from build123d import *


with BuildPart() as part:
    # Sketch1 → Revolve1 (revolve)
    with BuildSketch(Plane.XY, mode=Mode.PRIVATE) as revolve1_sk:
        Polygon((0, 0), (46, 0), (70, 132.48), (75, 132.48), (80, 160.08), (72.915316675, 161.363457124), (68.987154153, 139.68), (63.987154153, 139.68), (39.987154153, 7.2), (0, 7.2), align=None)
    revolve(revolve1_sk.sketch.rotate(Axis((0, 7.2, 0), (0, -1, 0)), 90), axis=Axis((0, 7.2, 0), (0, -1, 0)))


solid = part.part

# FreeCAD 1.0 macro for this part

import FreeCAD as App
import Part
import Sketcher
from FreeCAD import Vector
Q = App.Units.Quantity


def add_polygon(sketch, points):
    """Adds a closed chain of lines whose ends are joined by coincident constraints."""
    first, n = sketch.GeometryCount, len(points)
    for a, b in zip(points, points[1:] + points[:1]):
        sketch.addGeometry(Part.LineSegment(App.Vector(*a, 0), App.Vector(*b, 0)), False)
    for i in range(n):
        sketch.addConstraint(Sketcher.Constraint("Coincident", first + i, 2, first + (i + 1) % n, 1))

doc = App.newDocument("Part")
body = doc.addObject("PartDesign::Body", "Body")

# Sketch on XY plane
sketch1 = body.newObject("Sketcher::SketchObject", "Sketch")
sketch1.AttachmentSupport = (doc.getObject("XY_Plane"), [""])
sketch1.MapMode = "FlatFace"
add_polygon(sketch1, [(0, 0), (46, 0), (70, 132), (75, 132), (80, 160), (73, 161), (69, 140), (64, 140), (40, 7), (0, 7)])  # lines 0-9
sketch1.addConstraint(Sketcher.Constraint("Horizontal", 0))
sketch1.addConstraint(Sketcher.Constraint("Horizontal", 2))
sketch1.addConstraint(Sketcher.Constraint("Horizontal", 6))
sketch1.addConstraint(Sketcher.Constraint("Horizontal", 8))
sketch1.addConstraint(Sketcher.Constraint("Vertical", 9))
sketch1.addConstraint(Sketcher.Constraint("Coincident", 9, 2, -1, 1))
sketch1.addConstraint(Sketcher.Constraint("Parallel", 1, 3))
sketch1.addConstraint(Sketcher.Constraint("Perpendicular", 3, 4))
sketch1.addConstraint(Sketcher.Constraint("Perpendicular", 4, 5))
sketch1.addConstraint(Sketcher.Constraint("Parallel", 5, 7))
sketch1.addConstraint(Sketcher.Constraint("Equal", 2, 6))
sketch1.addConstraint(Sketcher.Constraint("Equal", 1, 7))
sketch1.addConstraint(Sketcher.Constraint("DistanceX", 0, 1, 0, 2, Q("46 mm")))
sketch1.addConstraint(Sketcher.Constraint("DistanceX", 2, 1, 2, 2, Q("5 mm")))
sketch1.addConstraint(Sketcher.Constraint("DistanceY", 9, 2, 9, 1, Q("7.2 mm")))
sketch1.addConstraint(Sketcher.Constraint("DistanceX", -1, 1, 1, 2, Q("70 mm")))
sketch1.addConstraint(Sketcher.Constraint("DistanceX", -1, 1, 3, 2, Q("80 mm")))
sketch1.addConstraint(Sketcher.Constraint("Distance", 4, Q("7.2 mm")))
sketch1.addConstraint(Sketcher.Constraint("DistanceY", 2, 2, 3, 2, Q("27.6 mm")))
revolution = body.newObject("PartDesign::Revolution", "Revolution")
revolution.Profile = sketch1
revolution.ReferenceAxis = (sketch1, ["V_Axis"])
revolution.Angle = 360

doc.recompute()
